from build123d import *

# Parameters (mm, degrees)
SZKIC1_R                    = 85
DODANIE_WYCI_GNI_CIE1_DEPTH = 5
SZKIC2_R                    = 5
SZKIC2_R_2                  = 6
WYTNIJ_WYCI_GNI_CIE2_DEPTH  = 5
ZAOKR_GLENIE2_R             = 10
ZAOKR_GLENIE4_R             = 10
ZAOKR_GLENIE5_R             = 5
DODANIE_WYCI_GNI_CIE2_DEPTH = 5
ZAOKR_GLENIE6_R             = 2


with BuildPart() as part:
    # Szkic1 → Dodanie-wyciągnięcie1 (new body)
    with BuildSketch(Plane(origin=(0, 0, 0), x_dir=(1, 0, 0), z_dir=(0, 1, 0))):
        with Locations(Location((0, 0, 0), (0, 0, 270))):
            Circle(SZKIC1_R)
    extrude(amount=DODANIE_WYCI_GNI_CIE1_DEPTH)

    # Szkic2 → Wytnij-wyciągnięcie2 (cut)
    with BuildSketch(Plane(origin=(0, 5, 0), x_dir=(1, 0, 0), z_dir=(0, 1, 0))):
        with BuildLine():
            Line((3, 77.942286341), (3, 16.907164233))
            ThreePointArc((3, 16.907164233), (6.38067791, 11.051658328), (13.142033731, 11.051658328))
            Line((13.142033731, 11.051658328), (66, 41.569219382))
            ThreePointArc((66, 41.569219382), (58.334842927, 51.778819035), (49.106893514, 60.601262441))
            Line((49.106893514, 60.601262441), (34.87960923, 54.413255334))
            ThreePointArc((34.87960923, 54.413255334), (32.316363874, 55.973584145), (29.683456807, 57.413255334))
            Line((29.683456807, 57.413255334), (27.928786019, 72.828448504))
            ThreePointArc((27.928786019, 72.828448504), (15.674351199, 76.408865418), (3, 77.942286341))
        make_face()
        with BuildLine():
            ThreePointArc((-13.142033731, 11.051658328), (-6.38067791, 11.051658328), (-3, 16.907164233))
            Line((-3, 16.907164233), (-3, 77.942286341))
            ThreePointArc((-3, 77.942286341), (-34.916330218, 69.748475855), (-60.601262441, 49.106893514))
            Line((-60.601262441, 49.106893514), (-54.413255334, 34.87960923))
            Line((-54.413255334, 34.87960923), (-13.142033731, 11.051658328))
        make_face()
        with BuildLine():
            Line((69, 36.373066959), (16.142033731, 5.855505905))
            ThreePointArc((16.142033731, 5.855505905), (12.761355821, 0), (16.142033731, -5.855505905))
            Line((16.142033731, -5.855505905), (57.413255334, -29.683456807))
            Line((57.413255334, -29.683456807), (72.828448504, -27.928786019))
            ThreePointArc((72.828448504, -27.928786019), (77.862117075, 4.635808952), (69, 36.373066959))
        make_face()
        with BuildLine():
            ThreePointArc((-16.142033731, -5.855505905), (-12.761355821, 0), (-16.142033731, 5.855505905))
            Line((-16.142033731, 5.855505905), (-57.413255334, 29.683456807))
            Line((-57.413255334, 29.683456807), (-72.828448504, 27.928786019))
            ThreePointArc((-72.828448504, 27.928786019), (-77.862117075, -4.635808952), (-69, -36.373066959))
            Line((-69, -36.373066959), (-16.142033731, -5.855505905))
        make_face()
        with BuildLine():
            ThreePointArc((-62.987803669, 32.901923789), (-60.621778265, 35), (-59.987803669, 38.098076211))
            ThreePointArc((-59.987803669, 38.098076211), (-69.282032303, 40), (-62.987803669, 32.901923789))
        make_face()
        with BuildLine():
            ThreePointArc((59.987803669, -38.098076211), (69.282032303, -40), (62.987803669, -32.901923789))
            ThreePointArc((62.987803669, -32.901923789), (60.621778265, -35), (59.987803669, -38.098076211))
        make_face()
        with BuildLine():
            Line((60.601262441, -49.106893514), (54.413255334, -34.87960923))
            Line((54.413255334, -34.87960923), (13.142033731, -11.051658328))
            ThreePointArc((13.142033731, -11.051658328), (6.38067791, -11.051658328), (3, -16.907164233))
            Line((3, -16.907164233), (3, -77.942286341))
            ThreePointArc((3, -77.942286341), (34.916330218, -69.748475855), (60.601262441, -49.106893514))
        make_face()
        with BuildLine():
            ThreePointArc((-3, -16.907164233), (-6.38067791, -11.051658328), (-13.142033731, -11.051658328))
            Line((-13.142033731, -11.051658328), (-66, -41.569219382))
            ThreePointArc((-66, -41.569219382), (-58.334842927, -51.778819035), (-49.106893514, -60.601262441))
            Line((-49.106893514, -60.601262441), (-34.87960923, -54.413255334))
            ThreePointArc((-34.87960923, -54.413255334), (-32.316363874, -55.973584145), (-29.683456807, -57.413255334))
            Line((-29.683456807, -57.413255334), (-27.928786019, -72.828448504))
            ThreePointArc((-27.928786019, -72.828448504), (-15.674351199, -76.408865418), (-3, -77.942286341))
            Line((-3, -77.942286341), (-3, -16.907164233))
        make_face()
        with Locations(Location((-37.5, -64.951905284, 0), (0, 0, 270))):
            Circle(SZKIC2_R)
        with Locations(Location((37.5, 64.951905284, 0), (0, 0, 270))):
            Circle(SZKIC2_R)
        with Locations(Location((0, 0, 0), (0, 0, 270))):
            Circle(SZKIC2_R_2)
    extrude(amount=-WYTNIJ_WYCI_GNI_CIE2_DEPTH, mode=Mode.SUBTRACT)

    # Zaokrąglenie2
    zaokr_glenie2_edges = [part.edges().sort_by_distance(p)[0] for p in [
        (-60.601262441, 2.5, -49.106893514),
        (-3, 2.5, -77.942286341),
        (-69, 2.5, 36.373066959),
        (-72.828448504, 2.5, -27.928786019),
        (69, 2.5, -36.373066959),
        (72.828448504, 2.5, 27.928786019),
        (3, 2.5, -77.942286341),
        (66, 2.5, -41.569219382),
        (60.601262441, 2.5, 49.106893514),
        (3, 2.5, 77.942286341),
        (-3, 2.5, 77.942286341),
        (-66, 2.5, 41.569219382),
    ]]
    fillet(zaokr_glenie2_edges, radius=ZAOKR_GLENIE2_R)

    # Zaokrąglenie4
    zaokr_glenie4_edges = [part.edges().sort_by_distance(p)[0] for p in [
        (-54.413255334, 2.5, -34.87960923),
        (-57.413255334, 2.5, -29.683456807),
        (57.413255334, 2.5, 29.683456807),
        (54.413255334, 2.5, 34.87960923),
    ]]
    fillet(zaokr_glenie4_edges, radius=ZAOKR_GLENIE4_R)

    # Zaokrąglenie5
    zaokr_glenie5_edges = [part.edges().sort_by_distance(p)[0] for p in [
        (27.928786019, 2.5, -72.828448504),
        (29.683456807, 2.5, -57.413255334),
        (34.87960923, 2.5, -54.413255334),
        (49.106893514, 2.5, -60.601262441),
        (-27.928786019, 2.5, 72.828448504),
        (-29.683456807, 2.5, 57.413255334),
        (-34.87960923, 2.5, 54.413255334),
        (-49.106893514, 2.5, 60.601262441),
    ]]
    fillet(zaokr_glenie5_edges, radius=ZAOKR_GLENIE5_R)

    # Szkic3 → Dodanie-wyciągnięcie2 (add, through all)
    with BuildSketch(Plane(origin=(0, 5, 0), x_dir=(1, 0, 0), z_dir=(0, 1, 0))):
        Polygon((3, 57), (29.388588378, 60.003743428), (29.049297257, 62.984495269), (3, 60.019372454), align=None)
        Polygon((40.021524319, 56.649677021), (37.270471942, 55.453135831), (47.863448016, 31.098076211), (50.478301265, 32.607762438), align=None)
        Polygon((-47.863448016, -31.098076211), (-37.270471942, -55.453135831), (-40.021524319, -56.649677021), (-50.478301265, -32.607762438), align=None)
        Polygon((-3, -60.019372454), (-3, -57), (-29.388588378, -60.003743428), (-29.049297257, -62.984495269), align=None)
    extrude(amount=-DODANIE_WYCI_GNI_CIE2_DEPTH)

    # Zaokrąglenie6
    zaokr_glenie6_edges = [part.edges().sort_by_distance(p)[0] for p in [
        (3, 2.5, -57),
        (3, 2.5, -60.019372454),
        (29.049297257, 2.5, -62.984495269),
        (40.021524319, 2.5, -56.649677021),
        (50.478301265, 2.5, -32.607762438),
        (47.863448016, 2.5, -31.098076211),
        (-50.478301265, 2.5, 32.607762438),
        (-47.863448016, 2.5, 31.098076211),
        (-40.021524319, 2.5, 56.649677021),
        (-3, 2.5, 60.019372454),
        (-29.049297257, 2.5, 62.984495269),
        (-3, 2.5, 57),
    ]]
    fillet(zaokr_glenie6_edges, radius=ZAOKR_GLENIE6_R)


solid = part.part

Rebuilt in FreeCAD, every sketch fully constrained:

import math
import FreeCAD as App
import Part
import Sketcher
from FreeCAD import Vector
Q = App.Units.Quantity


def edges_at(feature, points):
    """Names of the edges that pass closest to the given points."""
    edges = feature.Shape.Edges
    near = lambda p: min(range(len(edges)), key=lambda i: edges[i].distToShape(Part.Vertex(*p))[0])
    return sorted({f"Edge{near(p) + 1}" for p in points})

doc = App.newDocument("Part")
body = doc.addObject("PartDesign::Body", "Body")

# Sketch on XZ plane
sketch1 = doc.addObject("Sketcher::SketchObject", "Sketch")
body.addObject(sketch1)
sketch1.AttachmentSupport = (doc.XZ_Plane, [""])
sketch1.MapMode = "FlatFace"
sketch1.addGeometry(Part.Circle(Vector(0, 0, 0), Vector(0, 0, 1), 85), False)
sketch1.addConstraint([
    Sketcher.Constraint("Coincident", 0, 3, -1, 1),
    Sketcher.Constraint("Diameter", 0, 170.0),
])
pad1 = doc.addObject("PartDesign::Pad", "Pad")
body.addObject(pad1)
pad1.Profile = sketch1
pad1.Length = 5
pad1.Reversed = True

# Sketch on XZ plane
sketch2 = doc.addObject("Sketcher::SketchObject", "Sketch001")
body.addObject(sketch2)
sketch2.AttachmentSupport = (doc.XZ_Plane, [""])
sketch2.MapMode = "FlatFace"
sketch2.AttachmentOffset = App.Placement(Vector(0, 0, -5), App.Rotation())
sketch2.addGeometry([
    Part.LineSegment(Vector(3, -77.9, 0), Vector(3, -16.9, 0)),  # 0
    Part.ArcOfCircle(Part.Circle(Vector(9.8, -16.9, 0), Vector(0, 0, 1), 6.8), math.radians(60), math.radians(180)),  # 1
    Part.LineSegment(Vector(13.1, -11.1, 0), Vector(66, -41.6, 0)),  # 2
    Part.ArcOfCircle(Part.Circle(Vector(0, 0, 0), Vector(0, 0, 1), 78), math.radians(-50.98), math.radians(-32.2)),  # 3
    Part.LineSegment(Vector(49.1, -60.6, 0), Vector(34.9, -54.4, 0)),  # 4
    Part.ArcOfCircle(Part.Circle(Vector(0, 0, 0), Vector(0, 0, 1), 64.6), math.radians(-62.66), math.radians(-57.34)),  # 5
    Part.LineSegment(Vector(29.7, -57.4, 0), Vector(27.9, -72.8, 0)),  # 6
    Part.ArcOfCircle(Part.Circle(Vector(0, 0, 0), Vector(0, 0, 1), 78), math.radians(-87.8), math.radians(-69.02)),  # 7
    Part.ArcOfCircle(Part.Circle(Vector(-9.8, -16.9, 0), Vector(0, 0, 1), 6.8), math.radians(0), math.radians(120)),  # 8
    Part.LineSegment(Vector(-3, -16.9, 0), Vector(-3, -77.9, 0)),  # 9
    Part.ArcOfCircle(Part.Circle(Vector(0, 0, 0), Vector(0, 0, 1), 78), math.radians(-141), math.radians(-92)),  # 10
    Part.LineSegment(Vector(-60.6, -49.1, 0), Vector(-54.4, -34.9, 0)),  # 11
    Part.LineSegment(Vector(-54.4, -34.9, 0), Vector(-13.1, -11.1, 0)),  # 12
    Part.LineSegment(Vector(69, -36.4, 0), Vector(16.1, -5.9, 0)),  # 13
    Part.ArcOfCircle(Part.Circle(Vector(19.5, 0, 0), Vector(0, 0, 1), 6.8), math.radians(120), math.radians(240)),  # 14
    Part.LineSegment(Vector(16.1, 5.9, 0), Vector(57.4, 29.7, 0)),  # 15
    Part.LineSegment(Vector(57.4, 29.7, 0), Vector(72.8, 27.9, 0)),  # 16
    Part.ArcOfCircle(Part.Circle(Vector(0, 0, 0), Vector(0, 0, 1), 78), math.radians(-28), math.radians(21)),  # 17
    Part.ArcOfCircle(Part.Circle(Vector(-19.5, 0, 0), Vector(0, 0, 1), 6.8), math.radians(-60), math.radians(60)),  # 18
    Part.LineSegment(Vector(-16.1, -5.9, 0), Vector(-57.4, -29.7, 0)),  # 19
    Part.LineSegment(Vector(-57.4, -29.7, 0), Vector(-72.8, -27.9, 0)),  # 20
    Part.ArcOfCircle(Part.Circle(Vector(0, 0, 0), Vector(0, 0, 1), 78), math.radians(152), math.radians(201)),  # 21
    Part.LineSegment(Vector(-69, 36.4, 0), Vector(-16.1, 5.9, 0)),  # 22
    Part.ArcOfCircle(Part.Circle(Vector(-65, -37.5, 0), Vector(0, 0, 1), 5), math.radians(-7), math.radians(67)),  # 23
    Part.ArcOfCircle(Part.Circle(Vector(-65, -37.5, 0), Vector(0, 0, 1), 5), math.radians(67), math.radians(353)),  # 24
    Part.ArcOfCircle(Part.Circle(Vector(65, 37.5, 0), Vector(0, 0, 1), 5), math.radians(-113), math.radians(173)),  # 25
    Part.ArcOfCircle(Part.Circle(Vector(65, 37.5, 0), Vector(0, 0, 1), 5), math.radians(173), math.radians(247)),  # 26
    Part.LineSegment(Vector(60.6, 49.1, 0), Vector(54.4, 34.9, 0)),  # 27
    Part.LineSegment(Vector(54.4, 34.9, 0), Vector(13.1, 11.1, 0)),  # 28
    Part.ArcOfCircle(Part.Circle(Vector(9.8, 16.9, 0), Vector(0, 0, 1), 6.8), math.radians(180), math.radians(300)),  # 29
    Part.LineSegment(Vector(3, 16.9, 0), Vector(3, 77.9, 0)),  # 30
    Part.ArcOfCircle(Part.Circle(Vector(0, 0, 0), Vector(0, 0, 1), 78), math.radians(39), math.radians(88)),  # 31
    Part.ArcOfCircle(Part.Circle(Vector(-9.8, 16.9, 0), Vector(0, 0, 1), 6.8), math.radians(-120), math.radians(0)),  # 32
    Part.LineSegment(Vector(-13.1, 11.1, 0), Vector(-66, 41.6, 0)),  # 33
    Part.ArcOfCircle(Part.Circle(Vector(0, 0, 0), Vector(0, 0, 1), 78), math.radians(129.02), math.radians(147.8)),  # 34
    Part.LineSegment(Vector(-49.1, 60.6, 0), Vector(-34.9, 54.4, 0)),  # 35
    Part.ArcOfCircle(Part.Circle(Vector(0, 0, 0), Vector(0, 0, 1), 64.6), math.radians(117.34), math.radians(122.66)),  # 36
    Part.LineSegment(Vector(-29.7, 57.4, 0), Vector(-27.9, 72.8, 0)),  # 37
    Part.ArcOfCircle(Part.Circle(Vector(0, 0, 0), Vector(0, 0, 1), 78), math.radians(92.2), math.radians(110.98)),  # 38
    Part.LineSegment(Vector(-3, 77.9, 0), Vector(-3, 16.9, 0)),  # 39
    Part.Circle(Vector(-37.5, 65, 0), Vector(0, 0, 1), 5),  # 40
    Part.Circle(Vector(37.5, -65, 0), Vector(0, 0, 1), 5),  # 41
    Part.Circle(Vector(0, 0, 0), Vector(0, 0, 1), 6),  # 42
], False)
sketch2.addConstraint([
    Sketcher.Constraint("Tangent", 0, 2, 1, 2),
    Sketcher.Constraint("Tangent", 1, 1, 2, 1),
    Sketcher.Constraint("Coincident", 2, 2, 3, 2),
    Sketcher.Constraint("Coincident", 3, 1, 4, 1),
    Sketcher.Constraint("Coincident", 4, 2, 5, 2),
    Sketcher.Constraint("Coincident", 5, 1, 6, 1),
    Sketcher.Constraint("Coincident", 6, 2, 7, 2),
    Sketcher.Constraint("Coincident", 7, 1, 0, 1),
    Sketcher.Constraint("Tangent", 8, 1, 9, 1),
    Sketcher.Constraint("Coincident", 9, 2, 10, 2),
    Sketcher.Constraint("Coincident", 10, 1, 11, 1),
    Sketcher.Constraint("Coincident", 11, 2, 12, 1),
    Sketcher.Constraint("Tangent", 12, 2, 8, 2),
    Sketcher.Constraint("Tangent", 13, 2, 14, 2),
    Sketcher.Constraint("Tangent", 14, 1, 15, 1),
    Sketcher.Constraint("Coincident", 15, 2, 16, 1),
    Sketcher.Constraint("Coincident", 16, 2, 17, 2),
    Sketcher.Constraint("Coincident", 17, 1, 13, 1),
    Sketcher.Constraint("Tangent", 18, 1, 19, 1),
    Sketcher.Constraint("Coincident", 19, 2, 20, 1),
    Sketcher.Constraint("Coincident", 20, 2, 21, 2),
    Sketcher.Constraint("Coincident", 21, 1, 22, 1),
    Sketcher.Constraint("Tangent", 22, 2, 18, 2),
    Sketcher.Constraint("Tangent", 23, 1, 24, 2),
    Sketcher.Constraint("Coincident", 24, 1, 23, 2),
    Sketcher.Constraint("Tangent", 25, 1, 26, 2),
    Sketcher.Constraint("Coincident", 26, 1, 25, 2),
    Sketcher.Constraint("Coincident", 27, 2, 28, 1),
    Sketcher.Constraint("Tangent", 28, 2, 29, 2),
    Sketcher.Constraint("Tangent", 29, 1, 30, 1),
    Sketcher.Constraint("Coincident", 30, 2, 31, 2),
    Sketcher.Constraint("Coincident", 31, 1, 27, 1),
    Sketcher.Constraint("Tangent", 32, 1, 33, 1),
    Sketcher.Constraint("Coincident", 33, 2, 34, 2),
    Sketcher.Constraint("Coincident", 34, 1, 35, 1),
    Sketcher.Constraint("Coincident", 35, 2, 36, 2),
    Sketcher.Constraint("Coincident", 36, 1, 37, 1),
    Sketcher.Constraint("Coincident", 37, 2, 38, 2),
    Sketcher.Constraint("Coincident", 38, 1, 39, 1),
    Sketcher.Constraint("Tangent", 39, 2, 32, 2),
    Sketcher.Constraint("Vertical", 0),
    Sketcher.Constraint("Vertical", 9),
    Sketcher.Constraint("Vertical", 30),
    Sketcher.Constraint("Vertical", 39),
    Sketcher.Constraint("Coincident", 3, 3, -1, 1),
    Sketcher.Constraint("Coincident", 5, 3, -1, 1),
    Sketcher.Constraint("Coincident", 7, 3, -1, 1),
    Sketcher.Constraint("Coincident", 10, 3, -1, 1),
    Sketcher.Constraint("Coincident", 17, 3, -1, 1),
    Sketcher.Constraint("Coincident", 21, 3, -1, 1),
    Sketcher.Constraint("Coincident", 31, 3, -1, 1),
    Sketcher.Constraint("Coincident", 34, 3, -1, 1),
    Sketcher.Constraint("Coincident", 36, 3, -1, 1),
    Sketcher.Constraint("Coincident", 38, 3, -1, 1),
    Sketcher.Constraint("Coincident", 42, 3, -1, 1),
    Sketcher.Constraint("Equal", 3, 7),
    Sketcher.Constraint("Equal", 1, 8),
    Sketcher.Constraint("Equal", 7, 10),
    Sketcher.Constraint("Equal", 8, 14),
    Sketcher.Constraint("Equal", 10, 17),
    Sketcher.Constraint("Equal", 14, 18),
    Sketcher.Constraint("Equal", 17, 21),
    Sketcher.Constraint("Equal", 24, 25),
    Sketcher.Constraint("Equal", 18, 29),
    Sketcher.Constraint("Equal", 21, 31),
    Sketcher.Constraint("Equal", 29, 32),
    Sketcher.Constraint("Equal", 31, 34),
    Sketcher.Constraint("Equal", 5, 36),
    Sketcher.Constraint("Equal", 34, 38),
    Sketcher.Constraint("Equal", 26, 40),
    Sketcher.Constraint("Equal", 40, 41),
    Sketcher.Constraint("Symmetric", 14, 3, 18, 3, -1, 1),
    Sketcher.Constraint("Symmetric", 23, 3, 25, 3, -1, 1),
    Sketcher.Constraint("Symmetric", 8, 3, 29, 3, -1, 1),
    Sketcher.Constraint("Symmetric", 1, 3, 32, 3, -1, 1),
    Sketcher.Constraint("Symmetric", 40, 3, 41, 3, -1, 1),
    Sketcher.Constraint("Symmetric", 15, 2, 19, 2, -1, 1),
    Sketcher.Constraint("Symmetric", 11, 2, 27, 2, -1, 1),
    Sketcher.Constraint("Symmetric", 1, 3, 8, 3, -2),
    Sketcher.Constraint("Symmetric", 13, 2, 18, 1, -2),
    Sketcher.Constraint("Perpendicular", 4, 11),
    Sketcher.Constraint("Parallel", 2, 13),
    Sketcher.Constraint("Parallel", 12, 15),
    Sketcher.Constraint("Perpendicular", 6, 16),
    Sketcher.Constraint("Parallel", 16, 20),
    Sketcher.Constraint("Parallel", 13, 22),
    Sketcher.Constraint("Parallel", 11, 27),
    Sketcher.Constraint("Parallel", 22, 33),
    Sketcher.Constraint("Perpendicular", 27, 35),
    Sketcher.Constraint("Perpendicular", 20, 37),
    Sketcher.Constraint("Equal", 4, 6),
    Sketcher.Constraint("Equal", 6, 11),
    Sketcher.Constraint("Equal", 2, 13),
    Sketcher.Constraint("Equal", 12, 15),
    Sketcher.Constraint("Equal", 11, 16),
    Sketcher.Constraint("Equal", 27, 35),
    Sketcher.Constraint("Equal", 35, 37),
    Sketcher.Constraint("Diameter", 40, 10.0),
    Sketcher.Constraint("Diameter", 42, 12.0),
    Sketcher.Constraint("Radius", 3, 78.0),
    Sketcher.Constraint("Angle", 2, Q("-30 deg")),
    Sketcher.Constraint("DistanceX", -1, 1, 0, 2, 3.0),
    Sketcher.Constraint("DistanceX", -1, 1, 2, 2, 66.0),
    Sketcher.Constraint("DistanceY", 23, 3, -1, 1, 37.5),
    Sketcher.Constraint("DistanceX", 40, 3, -1, 1, 37.5),
    Sketcher.Constraint("Radius", 1, 6.761356),
    Sketcher.Constraint("Radius", 5, 64.632728),
    Sketcher.Constraint("Distance", 12, 47.655902),
    Sketcher.Constraint("DistanceY", 6, 2, -1, 1, 72.828449),
    Sketcher.Constraint("DistanceX", 23, 3, -1, 1, 64.951905),
    Sketcher.Constraint("DistanceY", -1, 1, 40, 3, 64.951905),
    Sketcher.Constraint("DistanceX", 23, 1, -1, 1, 59.987804),
    Sketcher.Constraint("DistanceX", 24, 1, -1, 1, 62.987804),
    Sketcher.Constraint("DistanceX", -1, 1, 25, 1, 62.987804),
    Sketcher.Constraint("DistanceX", -1, 1, 26, 1, 59.987804),
])
pocket1 = doc.addObject("PartDesign::Pocket", "Pocket")
body.addObject(pocket1)
pocket1.Profile = sketch2
pocket1.Length = 5
pocket1.Reversed = True
doc.recompute()

fillet = doc.addObject("PartDesign::Fillet", "Fillet")
body.addObject(fillet)
fillet.Base = (pocket1, edges_at(pocket1, [
    (-60.601, 2.5, -49.107),
    (-3, 2.5, -77.942),
    (-69, 2.5, 36.373),
    (-72.828, 2.5, -27.929),
    (69, 2.5, -36.373),
    (72.828, 2.5, 27.929),
    (3, 2.5, -77.942),
    (66, 2.5, -41.569),
    (60.601, 2.5, 49.107),
    (3, 2.5, 77.942),
    (-3, 2.5, 77.942),
    (-66, 2.5, 41.569),
]))
fillet.Radius = 10
doc.recompute()

fillet2 = doc.addObject("PartDesign::Fillet", "Fillet001")
body.addObject(fillet2)
fillet2.Base = (fillet, edges_at(fillet, [
    (-54.413, 2.5, -34.88),
    (-57.413, 2.5, -29.683),
    (57.413, 2.5, 29.683),
    (54.413, 2.5, 34.88),
]))
fillet2.Radius = 10
doc.recompute()

fillet3 = doc.addObject("PartDesign::Fillet", "Fillet002")
body.addObject(fillet3)
fillet3.Base = (fillet2, edges_at(fillet2, [
    (27.929, 2.5, -72.828),
    (29.683, 2.5, -57.413),
    (34.88, 2.5, -54.413),
    (49.107, 2.5, -60.601),
    (-27.929, 2.5, 72.828),
    (-29.683, 2.5, 57.413),
    (-34.88, 2.5, 54.413),
    (-49.107, 2.5, 60.601),
]))
fillet3.Radius = 5

# Sketch on XZ plane
sketch3 = doc.addObject("Sketcher::SketchObject", "Sketch002")
body.addObject(sketch3)
sketch3.AttachmentSupport = (doc.XZ_Plane, [""])
sketch3.MapMode = "FlatFace"
sketch3.AttachmentOffset = App.Placement(Vector(0, 0, -5), App.Rotation())
sketch3.addGeometry([
    Part.LineSegment(Vector(3, -57, 0), Vector(29.4, -60, 0)),  # 0
    Part.LineSegment(Vector(29.4, -60, 0), Vector(29, -63, 0)),  # 1
    Part.LineSegment(Vector(29, -63, 0), Vector(3, -60, 0)),  # 2
    Part.LineSegment(Vector(3, -60, 0), Vector(3, -57, 0)),  # 3
    Part.LineSegment(Vector(40, -56.6, 0), Vector(37.3, -55.5, 0)),  # 4
    Part.LineSegment(Vector(37.3, -55.5, 0), Vector(47.9, -31.1, 0)),  # 5
    Part.LineSegment(Vector(47.9, -31.1, 0), Vector(50.5, -32.6, 0)),  # 6
    Part.LineSegment(Vector(50.5, -32.6, 0), Vector(40, -56.6, 0)),  # 7
    Part.LineSegment(Vector(-37.3, 55.5, 0), Vector(-47.9, 31.1, 0)),  # 8
    Part.LineSegment(Vector(-47.9, 31.1, 0), Vector(-50.5, 32.6, 0)),  # 9
    Part.LineSegment(Vector(-50.5, 32.6, 0), Vector(-40, 56.6, 0)),  # 10
    Part.LineSegment(Vector(-40, 56.6, 0), Vector(-37.3, 55.5, 0)),  # 11
    Part.LineSegment(Vector(-3, 60, 0), Vector(-3, 57, 0)),  # 12
    Part.LineSegment(Vector(-3, 57, 0), Vector(-29.4, 60, 0)),  # 13
    Part.LineSegment(Vector(-29.4, 60, 0), Vector(-29, 63, 0)),  # 14
    Part.LineSegment(Vector(-29, 63, 0), Vector(-3, 60, 0)),  # 15
], False)
sketch3.addConstraint([
    Sketcher.Constraint("Coincident", 0, 2, 1, 1),
    Sketcher.Constraint("Coincident", 1, 2, 2, 1),
    Sketcher.Constraint("Coincident", 2, 2, 3, 1),
    Sketcher.Constraint("Coincident", 3, 2, 0, 1),
    Sketcher.Constraint("Coincident", 4, 2, 5, 1),
    Sketcher.Constraint("Coincident", 5, 2, 6, 1),
    Sketcher.Constraint("Coincident", 6, 2, 7, 1),
    Sketcher.Constraint("Coincident", 7, 2, 4, 1),
    Sketcher.Constraint("Coincident", 8, 2, 9, 1),
    Sketcher.Constraint("Coincident", 9, 2, 10, 1),
    Sketcher.Constraint("Coincident", 10, 2, 11, 1),
    Sketcher.Constraint("Coincident", 11, 2, 8, 1),
    Sketcher.Constraint("Coincident", 12, 2, 13, 1),
    Sketcher.Constraint("Coincident", 13, 2, 14, 1),
    Sketcher.Constraint("Coincident", 14, 2, 15, 1),
    Sketcher.Constraint("Coincident", 15, 2, 12, 1),
    Sketcher.Constraint("Vertical", 3),
    Sketcher.Constraint("Vertical", 12),
    Sketcher.Constraint("Symmetric", 5, 2, 8, 2, -1, 1),
    Sketcher.Constraint("Symmetric", 6, 2, 9, 2, -1, 1),
    Sketcher.Constraint("Symmetric", 7, 2, 10, 2, -1, 1),
    Sketcher.Constraint("Symmetric", 4, 2, 11, 2, -1, 1),
    Sketcher.Constraint("Symmetric", 3, 2, 12, 2, -1, 1),
    Sketcher.Constraint("Symmetric", 0, 2, 13, 2, -1, 1),
    Sketcher.Constraint("Symmetric", 1, 2, 14, 2, -1, 1),
    Sketcher.Constraint("Perpendicular", 0, 1),
    Sketcher.Constraint("Perpendicular", 1, 2),
    Sketcher.Constraint("Perpendicular", 4, 5),
    Sketcher.Constraint("Parallel", 5, 7),
    Sketcher.Constraint("Perpendicular", 14, 15),
    Sketcher.Constraint("Equal", 1, 4),
    Sketcher.Constraint("Equal", 0, 5),
    Sketcher.Constraint("Equal", 2, 7),
    Sketcher.Constraint("Angle", 6, Q("-30 deg")),
    Sketcher.Constraint("Distance", 1, 3.0),
    Sketcher.Constraint("DistanceX", -1, 1, 2, 2, 3.0),
    Sketcher.Constraint("DistanceY", 3, 2, -1, 1, 57.0),
    Sketcher.Constraint("DistanceX", -1, 1, 6, 2, 50.478301),
    Sketcher.Constraint("DistanceY", 7, 2, 5, 2, 25.551601),
    Sketcher.Constraint("Distance", 2, 26.21751),
    Sketcher.Constraint("DistanceY", 1, 2, 4, 2, 7.531359),
])
pad2 = doc.addObject("PartDesign::Pad", "Pad001")
body.addObject(pad2)
pad2.Profile = sketch3
pad2.Length = 5
doc.recompute()

fillet4 = doc.addObject("PartDesign::Fillet", "Fillet003")
body.addObject(fillet4)
fillet4.Base = (pad2, edges_at(pad2, [
    (3, 2.5, -57),
    (3, 2.5, -60.019),
    (29.049, 2.5, -62.984),
    (40.022, 2.5, -56.65),
    (50.478, 2.5, -32.608),
    (47.863, 2.5, -31.098),
    (-50.478, 2.5, 32.608),
    (-47.863, 2.5, 31.098),
    (-40.022, 2.5, 56.65),
    (-3, 2.5, 60.019),
    (-29.049, 2.5, 62.984),
    (-3, 2.5, 57),
]))
fillet4.Radius = 2

doc.recompute()
